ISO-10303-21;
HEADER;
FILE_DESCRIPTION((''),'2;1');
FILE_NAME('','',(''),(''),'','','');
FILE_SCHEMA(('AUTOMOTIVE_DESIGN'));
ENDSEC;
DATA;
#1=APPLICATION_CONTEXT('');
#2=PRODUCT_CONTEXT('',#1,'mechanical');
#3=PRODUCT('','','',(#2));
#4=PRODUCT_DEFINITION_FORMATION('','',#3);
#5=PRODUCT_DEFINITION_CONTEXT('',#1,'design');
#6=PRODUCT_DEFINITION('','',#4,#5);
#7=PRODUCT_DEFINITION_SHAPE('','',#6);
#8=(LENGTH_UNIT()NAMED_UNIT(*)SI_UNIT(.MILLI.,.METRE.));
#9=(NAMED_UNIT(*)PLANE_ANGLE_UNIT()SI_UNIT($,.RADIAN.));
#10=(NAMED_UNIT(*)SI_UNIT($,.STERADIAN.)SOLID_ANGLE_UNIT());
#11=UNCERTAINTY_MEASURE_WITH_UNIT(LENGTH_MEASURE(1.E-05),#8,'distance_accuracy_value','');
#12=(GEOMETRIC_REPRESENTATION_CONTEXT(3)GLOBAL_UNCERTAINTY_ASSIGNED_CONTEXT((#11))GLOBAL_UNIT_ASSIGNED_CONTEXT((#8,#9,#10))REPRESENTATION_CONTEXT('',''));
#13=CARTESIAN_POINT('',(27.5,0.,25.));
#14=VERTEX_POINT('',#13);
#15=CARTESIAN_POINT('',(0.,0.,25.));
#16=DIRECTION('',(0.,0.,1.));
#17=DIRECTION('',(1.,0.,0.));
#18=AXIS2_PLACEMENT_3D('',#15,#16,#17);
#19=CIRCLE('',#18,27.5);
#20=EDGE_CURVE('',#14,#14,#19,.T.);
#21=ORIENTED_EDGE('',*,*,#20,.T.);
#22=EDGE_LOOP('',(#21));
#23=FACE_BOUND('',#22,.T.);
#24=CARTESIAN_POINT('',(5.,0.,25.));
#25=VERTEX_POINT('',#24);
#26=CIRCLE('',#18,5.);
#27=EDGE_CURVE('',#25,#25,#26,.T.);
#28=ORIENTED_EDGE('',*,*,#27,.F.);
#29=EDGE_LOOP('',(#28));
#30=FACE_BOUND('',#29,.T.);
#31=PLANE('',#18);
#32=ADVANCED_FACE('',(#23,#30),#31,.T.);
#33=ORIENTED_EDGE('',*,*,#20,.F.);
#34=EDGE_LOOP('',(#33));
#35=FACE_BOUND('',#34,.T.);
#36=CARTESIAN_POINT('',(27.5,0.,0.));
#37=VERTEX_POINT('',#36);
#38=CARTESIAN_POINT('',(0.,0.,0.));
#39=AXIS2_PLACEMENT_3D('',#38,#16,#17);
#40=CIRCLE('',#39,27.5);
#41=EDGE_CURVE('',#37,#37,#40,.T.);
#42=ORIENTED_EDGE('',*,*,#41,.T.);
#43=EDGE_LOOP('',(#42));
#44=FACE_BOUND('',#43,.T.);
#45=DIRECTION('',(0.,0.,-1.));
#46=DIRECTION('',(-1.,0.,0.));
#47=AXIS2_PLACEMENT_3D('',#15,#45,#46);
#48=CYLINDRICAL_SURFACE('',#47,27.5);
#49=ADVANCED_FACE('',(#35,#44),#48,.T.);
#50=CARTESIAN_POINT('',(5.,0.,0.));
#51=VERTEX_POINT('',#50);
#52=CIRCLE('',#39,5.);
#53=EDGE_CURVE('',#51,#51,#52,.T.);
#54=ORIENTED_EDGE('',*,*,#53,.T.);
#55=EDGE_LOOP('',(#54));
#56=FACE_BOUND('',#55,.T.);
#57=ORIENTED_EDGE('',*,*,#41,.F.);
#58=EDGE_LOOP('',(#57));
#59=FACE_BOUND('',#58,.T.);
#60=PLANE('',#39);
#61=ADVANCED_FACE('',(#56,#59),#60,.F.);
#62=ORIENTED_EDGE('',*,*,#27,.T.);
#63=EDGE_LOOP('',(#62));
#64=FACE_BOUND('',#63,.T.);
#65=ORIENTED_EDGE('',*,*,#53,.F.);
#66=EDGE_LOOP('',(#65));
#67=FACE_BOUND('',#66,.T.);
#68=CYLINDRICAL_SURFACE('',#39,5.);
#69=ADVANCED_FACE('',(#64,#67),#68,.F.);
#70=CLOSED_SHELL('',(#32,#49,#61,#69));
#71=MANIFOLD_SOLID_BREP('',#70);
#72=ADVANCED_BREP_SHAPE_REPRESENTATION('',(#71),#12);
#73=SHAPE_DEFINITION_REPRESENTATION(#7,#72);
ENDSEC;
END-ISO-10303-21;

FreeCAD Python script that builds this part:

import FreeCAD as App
import Part
import Sketcher
Q = App.Units.Quantity

doc = App.newDocument("Part")
body = doc.addObject("PartDesign::Body", "Body")

# Sketch on XY plane
sketch1 = body.newObject("Sketcher::SketchObject", "Sketch")
sketch1.AttachmentSupport = (doc.getObject("XY_Plane"), [""])
sketch1.MapMode = "FlatFace"
sketch1.addGeometry(Part.Circle(App.Vector(0, 0, 0), App.Vector(0, 0, 1), 28), False)
sketch1.addConstraint(Sketcher.Constraint("Coincident", 0, 3, -1, 1))
sketch1.addConstraint(Sketcher.Constraint("Diameter", 0, Q("55 mm")))
pad1 = body.newObject("PartDesign::Pad", "Pad")
pad1.Profile = sketch1
pad1.Length = 25

# Sketch on XY plane
sketch2 = body.newObject("Sketcher::SketchObject", "Sketch001")
sketch2.AttachmentSupport = (doc.getObject("XY_Plane"), [""])
sketch2.MapMode = "FlatFace"
sketch2.AttachmentOffset = App.Placement(App.Vector(0, 0, 25), App.Rotation())
sketch2.addGeometry(Part.Circle(App.Vector(0, 0, 0), App.Vector(0, 0, 1), 5), False)
sketch2.addConstraint(Sketcher.Constraint("Coincident", 0, 3, -1, 1))
sketch2.addConstraint(Sketcher.Constraint("Diameter", 0, Q("10 mm")))
pocket1 = body.newObject("PartDesign::Pocket", "Pocket")
pocket1.Profile = sketch2
pocket1.Length = 25

doc.recompute()
